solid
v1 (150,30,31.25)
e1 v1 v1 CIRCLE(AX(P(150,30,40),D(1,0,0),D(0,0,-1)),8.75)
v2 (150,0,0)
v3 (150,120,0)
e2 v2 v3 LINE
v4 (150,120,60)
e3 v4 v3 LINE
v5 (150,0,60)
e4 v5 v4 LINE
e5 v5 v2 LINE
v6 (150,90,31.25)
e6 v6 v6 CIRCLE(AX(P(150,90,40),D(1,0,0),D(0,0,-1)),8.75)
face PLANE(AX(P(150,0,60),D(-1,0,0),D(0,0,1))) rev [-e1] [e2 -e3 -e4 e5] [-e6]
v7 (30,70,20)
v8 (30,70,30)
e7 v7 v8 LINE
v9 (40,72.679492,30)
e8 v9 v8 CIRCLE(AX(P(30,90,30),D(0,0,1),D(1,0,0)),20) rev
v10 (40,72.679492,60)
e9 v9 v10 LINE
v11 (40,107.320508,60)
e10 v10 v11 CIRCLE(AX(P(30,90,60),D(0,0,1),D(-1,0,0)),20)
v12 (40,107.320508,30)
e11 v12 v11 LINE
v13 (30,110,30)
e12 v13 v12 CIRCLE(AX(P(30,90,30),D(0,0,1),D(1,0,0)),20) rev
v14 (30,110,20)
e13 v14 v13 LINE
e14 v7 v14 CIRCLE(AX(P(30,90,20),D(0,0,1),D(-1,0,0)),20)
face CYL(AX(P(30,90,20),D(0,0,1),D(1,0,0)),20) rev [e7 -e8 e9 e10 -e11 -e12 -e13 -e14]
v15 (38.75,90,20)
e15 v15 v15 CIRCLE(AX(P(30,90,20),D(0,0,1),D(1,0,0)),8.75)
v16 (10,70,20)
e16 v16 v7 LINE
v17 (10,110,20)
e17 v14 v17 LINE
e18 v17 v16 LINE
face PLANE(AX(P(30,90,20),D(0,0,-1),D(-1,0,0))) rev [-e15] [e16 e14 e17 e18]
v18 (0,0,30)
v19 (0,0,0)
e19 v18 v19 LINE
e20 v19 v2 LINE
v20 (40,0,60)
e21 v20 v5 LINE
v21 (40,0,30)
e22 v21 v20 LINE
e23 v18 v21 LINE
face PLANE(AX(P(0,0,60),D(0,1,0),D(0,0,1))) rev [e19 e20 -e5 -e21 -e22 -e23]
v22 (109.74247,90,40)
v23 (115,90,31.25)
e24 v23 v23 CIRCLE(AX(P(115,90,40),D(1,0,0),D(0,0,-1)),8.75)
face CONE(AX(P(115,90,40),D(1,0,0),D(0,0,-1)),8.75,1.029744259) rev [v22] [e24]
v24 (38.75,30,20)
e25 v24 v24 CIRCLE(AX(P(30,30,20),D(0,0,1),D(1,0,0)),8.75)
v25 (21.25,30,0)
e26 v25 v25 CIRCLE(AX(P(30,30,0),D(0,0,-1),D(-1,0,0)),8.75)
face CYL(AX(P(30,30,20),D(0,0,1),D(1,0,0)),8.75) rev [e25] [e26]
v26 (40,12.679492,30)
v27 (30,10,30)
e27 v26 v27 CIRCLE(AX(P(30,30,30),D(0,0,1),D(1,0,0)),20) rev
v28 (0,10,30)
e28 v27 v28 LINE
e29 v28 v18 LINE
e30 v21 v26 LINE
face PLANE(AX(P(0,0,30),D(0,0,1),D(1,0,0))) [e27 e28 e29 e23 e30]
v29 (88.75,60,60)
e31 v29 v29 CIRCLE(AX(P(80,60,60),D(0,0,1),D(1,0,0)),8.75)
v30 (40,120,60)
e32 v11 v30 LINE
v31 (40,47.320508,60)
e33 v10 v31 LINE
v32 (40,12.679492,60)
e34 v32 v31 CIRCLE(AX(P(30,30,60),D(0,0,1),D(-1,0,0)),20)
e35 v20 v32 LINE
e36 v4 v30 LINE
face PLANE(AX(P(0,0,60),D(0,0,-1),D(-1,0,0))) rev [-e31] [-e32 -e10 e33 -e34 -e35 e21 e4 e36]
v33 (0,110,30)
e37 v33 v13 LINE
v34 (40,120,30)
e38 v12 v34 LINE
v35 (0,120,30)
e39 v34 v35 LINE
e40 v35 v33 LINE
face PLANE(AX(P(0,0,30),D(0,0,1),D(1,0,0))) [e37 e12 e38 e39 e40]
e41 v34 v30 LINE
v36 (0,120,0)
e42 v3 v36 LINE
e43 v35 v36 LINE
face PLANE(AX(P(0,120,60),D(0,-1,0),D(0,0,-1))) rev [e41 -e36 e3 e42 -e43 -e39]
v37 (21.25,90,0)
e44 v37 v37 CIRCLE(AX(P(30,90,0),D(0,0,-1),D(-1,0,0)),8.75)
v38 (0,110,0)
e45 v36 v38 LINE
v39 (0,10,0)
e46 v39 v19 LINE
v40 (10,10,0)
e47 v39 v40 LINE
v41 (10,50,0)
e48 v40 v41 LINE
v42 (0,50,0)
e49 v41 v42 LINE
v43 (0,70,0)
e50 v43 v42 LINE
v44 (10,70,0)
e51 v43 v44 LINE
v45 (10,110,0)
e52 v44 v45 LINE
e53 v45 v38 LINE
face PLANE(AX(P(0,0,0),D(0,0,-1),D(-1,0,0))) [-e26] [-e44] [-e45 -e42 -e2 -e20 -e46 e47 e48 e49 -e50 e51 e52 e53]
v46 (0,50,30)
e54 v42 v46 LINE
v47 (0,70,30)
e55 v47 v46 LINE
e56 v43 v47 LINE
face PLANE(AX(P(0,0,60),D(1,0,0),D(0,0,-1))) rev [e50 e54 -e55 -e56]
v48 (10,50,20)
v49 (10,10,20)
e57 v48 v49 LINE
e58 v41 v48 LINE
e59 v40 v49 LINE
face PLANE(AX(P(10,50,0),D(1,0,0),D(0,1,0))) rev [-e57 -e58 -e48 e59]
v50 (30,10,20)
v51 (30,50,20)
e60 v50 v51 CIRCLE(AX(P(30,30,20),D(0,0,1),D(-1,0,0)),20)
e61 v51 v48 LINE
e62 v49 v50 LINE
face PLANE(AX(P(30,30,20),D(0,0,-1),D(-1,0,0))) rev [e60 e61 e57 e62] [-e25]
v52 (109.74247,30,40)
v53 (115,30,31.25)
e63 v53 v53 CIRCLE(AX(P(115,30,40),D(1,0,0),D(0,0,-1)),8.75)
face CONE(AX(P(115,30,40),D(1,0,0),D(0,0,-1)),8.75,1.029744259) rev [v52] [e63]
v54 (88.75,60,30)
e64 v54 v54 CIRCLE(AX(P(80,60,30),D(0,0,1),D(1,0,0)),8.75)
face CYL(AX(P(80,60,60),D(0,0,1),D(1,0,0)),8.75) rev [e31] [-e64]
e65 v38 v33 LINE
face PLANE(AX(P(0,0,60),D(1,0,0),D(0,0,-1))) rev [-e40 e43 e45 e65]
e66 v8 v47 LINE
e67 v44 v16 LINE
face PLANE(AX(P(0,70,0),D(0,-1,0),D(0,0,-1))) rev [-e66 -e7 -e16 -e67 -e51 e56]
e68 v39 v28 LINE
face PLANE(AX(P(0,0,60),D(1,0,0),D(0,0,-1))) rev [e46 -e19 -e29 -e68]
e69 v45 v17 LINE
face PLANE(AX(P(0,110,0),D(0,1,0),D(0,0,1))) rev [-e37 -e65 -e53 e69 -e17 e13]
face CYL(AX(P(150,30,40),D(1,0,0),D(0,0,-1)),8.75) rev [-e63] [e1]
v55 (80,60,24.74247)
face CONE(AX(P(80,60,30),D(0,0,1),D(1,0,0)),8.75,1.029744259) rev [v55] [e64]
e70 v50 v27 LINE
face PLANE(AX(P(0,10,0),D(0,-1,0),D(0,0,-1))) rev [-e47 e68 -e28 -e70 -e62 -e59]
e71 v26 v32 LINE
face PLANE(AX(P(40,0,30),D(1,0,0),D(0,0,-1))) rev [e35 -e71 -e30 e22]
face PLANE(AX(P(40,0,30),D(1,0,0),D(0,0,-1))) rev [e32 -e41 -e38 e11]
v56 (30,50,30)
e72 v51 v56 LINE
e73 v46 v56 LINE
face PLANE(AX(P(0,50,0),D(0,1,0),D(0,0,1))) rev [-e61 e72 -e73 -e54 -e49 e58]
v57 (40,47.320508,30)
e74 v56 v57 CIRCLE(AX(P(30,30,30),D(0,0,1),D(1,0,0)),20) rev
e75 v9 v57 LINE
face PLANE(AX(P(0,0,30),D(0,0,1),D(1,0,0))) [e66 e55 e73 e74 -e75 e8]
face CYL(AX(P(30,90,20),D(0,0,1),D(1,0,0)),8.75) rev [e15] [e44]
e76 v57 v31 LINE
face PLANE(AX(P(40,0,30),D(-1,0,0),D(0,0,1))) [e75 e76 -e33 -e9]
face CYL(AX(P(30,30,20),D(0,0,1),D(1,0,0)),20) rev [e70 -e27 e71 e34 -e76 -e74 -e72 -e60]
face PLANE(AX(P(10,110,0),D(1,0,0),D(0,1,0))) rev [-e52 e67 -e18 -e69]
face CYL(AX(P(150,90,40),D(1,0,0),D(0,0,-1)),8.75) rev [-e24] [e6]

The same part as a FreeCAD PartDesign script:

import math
import FreeCAD as App
import Part
import Sketcher

doc = App.newDocument("Part")
body = doc.addObject("PartDesign::Body", "Body")

# Sketch on XY plane
sketch1 = body.newObject("Sketcher::SketchObject", "Sketch")
sketch1.AttachmentSupport = (doc.getObject("XY_Plane"), [""])
sketch1.MapMode = "FlatFace"
sketch1.addGeometry(Part.LineSegment(App.Vector(0, 120, 0), App.Vector(0, 0, 0)), False)
sketch1.addGeometry(Part.LineSegment(App.Vector(0, 0, 0), App.Vector(150, 0, 0)), False)
sketch1.addGeometry(Part.LineSegment(App.Vector(150, 0, 0), App.Vector(150, 120, 0)), False)
sketch1.addGeometry(Part.LineSegment(App.Vector(150, 120, 0), App.Vector(0, 120, 0)), False)
sketch1.addConstraint(Sketcher.Constraint("Coincident", 0, 2, 1, 1))
sketch1.addConstraint(Sketcher.Constraint("Coincident", 1, 2, 2, 1))
sketch1.addConstraint(Sketcher.Constraint("Coincident", 2, 2, 3, 1))
sketch1.addConstraint(Sketcher.Constraint("Coincident", 3, 2, 0, 1))
sketch1.addConstraint(Sketcher.Constraint("Vertical", 0))
sketch1.addConstraint(Sketcher.Constraint("Horizontal", 1))
sketch1.addConstraint(Sketcher.Constraint("Vertical", 2))
sketch1.addConstraint(Sketcher.Constraint("Horizontal", 3))
sketch1.addConstraint(Sketcher.Constraint("Coincident", 0, 2, -1, 1))
sketch1.addConstraint(Sketcher.Constraint("DistanceX", 1, 1, 1, 2, 150.0))
sketch1.addConstraint(Sketcher.Constraint("DistanceY", 0, 2, 0, 1, 120.0))
pad1 = body.newObject("PartDesign::Pad", "Pad")
pad1.Profile = sketch1
pad1.Length = 60

# Sketch on XY plane
sketch2 = body.newObject("Sketcher::SketchObject", "Sketch001")
sketch2.AttachmentSupport = (doc.getObject("XY_Plane"), [""])
sketch2.MapMode = "FlatFace"
sketch2.AttachmentOffset = App.Placement(App.Vector(0, 0, 60), App.Rotation())
sketch2.addGeometry(Part.LineSegment(App.Vector(0, 110, 0), App.Vector(0, 70, 0)), False)
sketch2.addGeometry(Part.LineSegment(App.Vector(0, 70, 0), App.Vector(10, 70, 0)), False)
sketch2.addGeometry(Part.LineSegment(App.Vector(10, 70, 0), App.Vector(10, 110, 0)), False)
sketch2.addGeometry(Part.LineSegment(App.Vector(10, 110, 0), App.Vector(0, 110, 0)), False)
sketch2.addGeometry(Part.LineSegment(App.Vector(0, 50, 0), App.Vector(0, 10, 0)), False)
sketch2.addGeometry(Part.LineSegment(App.Vector(0, 10, 0), App.Vector(10, 10, 0)), False)
sketch2.addGeometry(Part.LineSegment(App.Vector(10, 10, 0), App.Vector(10, 50, 0)), False)
sketch2.addGeometry(Part.LineSegment(App.Vector(10, 50, 0), App.Vector(0, 50, 0)), False)
sketch2.addConstraint(Sketcher.Constraint("Coincident", 0, 2, 1, 1))
sketch2.addConstraint(Sketcher.Constraint("Coincident", 1, 2, 2, 1))
sketch2.addConstraint(Sketcher.Constraint("Coincident", 2, 2, 3, 1))
sketch2.addConstraint(Sketcher.Constraint("Coincident", 3, 2, 0, 1))
sketch2.addConstraint(Sketcher.Constraint("Coincident", 4, 2, 5, 1))
sketch2.addConstraint(Sketcher.Constraint("Coincident", 5, 2, 6, 1))
sketch2.addConstraint(Sketcher.Constraint("Coincident", 6, 2, 7, 1))
sketch2.addConstraint(Sketcher.Constraint("Coincident", 7, 2, 4, 1))
sketch2.addConstraint(Sketcher.Constraint("Vertical", 0))
sketch2.addConstraint(Sketcher.Constraint("Horizontal", 1))
sketch2.addConstraint(Sketcher.Constraint("Vertical", 2))
sketch2.addConstraint(Sketcher.Constraint("Horizontal", 3))
sketch2.addConstraint(Sketcher.Constraint("Vertical", 4))
sketch2.addConstraint(Sketcher.Constraint("Horizontal", 5))
sketch2.addConstraint(Sketcher.Constraint("Vertical", 6))
sketch2.addConstraint(Sketcher.Constraint("Horizontal", 7))
sketch2.addConstraint(Sketcher.Constraint("PointOnObject", 0, 2, -2))
sketch2.addConstraint(Sketcher.Constraint("PointOnObject", 4, 2, -2))
sketch2.addConstraint(Sketcher.Constraint("Vertical", 2, 2, 5, 2))
sketch2.addConstraint(Sketcher.Constraint("Equal", 2, 4))
sketch2.addConstraint(Sketcher.Constraint("DistanceX", 1, 1, 1, 2, 10.0))
sketch2.addConstraint(Sketcher.Constraint("DistanceY", 0, 2, 0, 1, 40.0))
sketch2.addConstraint(Sketcher.Constraint("DistanceY", -1, 1, 0, 2, 70.0))
sketch2.addConstraint(Sketcher.Constraint("DistanceY", -1, 1, 4, 2, 10.0))
pocket1 = body.newObject("PartDesign::Pocket", "Pocket")
pocket1.Profile = sketch2
pocket1.Length = 60

# Sketch on XY plane
sketch3 = body.newObject("Sketcher::SketchObject", "Sketch002")
sketch3.AttachmentSupport = (doc.getObject("XY_Plane"), [""])
sketch3.MapMode = "FlatFace"
sketch3.AttachmentOffset = App.Placement(App.Vector(0, 0, 60), App.Rotation())
sketch3.addGeometry(Part.LineSegment(App.Vector(30, 110, 0), App.Vector(10, 110, 0)), False)
sketch3.addGeometry(Part.LineSegment(App.Vector(10, 110, 0), App.Vector(10, 70, 0)), False)
sketch3.addGeometry(Part.LineSegment(App.Vector(10, 70, 0), App.Vector(30, 70, 0)), False)
sketch3.addGeometry(Part.ArcOfCircle(Part.Circle(App.Vector(30, 90, 0), App.Vector(0, 0, 1), 20), math.radians(-90), math.radians(90)), False)
sketch3.addGeometry(Part.LineSegment(App.Vector(10, 50, 0), App.Vector(10, 10, 0)), False)
sketch3.addGeometry(Part.LineSegment(App.Vector(10, 10, 0), App.Vector(30, 10, 0)), False)
sketch3.addGeometry(Part.ArcOfCircle(Part.Circle(App.Vector(30, 30, 0), App.Vector(0, 0, 1), 20), math.radians(-90), math.radians(90)), False)
sketch3.addGeometry(Part.LineSegment(App.Vector(30, 50, 0), App.Vector(10, 50, 0)), False)
sketch3.addConstraint(Sketcher.Constraint("Coincident", 0, 2, 1, 1))
sketch3.addConstraint(Sketcher.Constraint("Coincident", 1, 2, 2, 1))
sketch3.addConstraint(Sketcher.Constraint("Tangent", 2, 2, 3, 1))
sketch3.addConstraint(Sketcher.Constraint("Tangent", 3, 2, 0, 1))
sketch3.addConstraint(Sketcher.Constraint("Coincident", 4, 2, 5, 1))
sketch3.addConstraint(Sketcher.Constraint("Tangent", 5, 2, 6, 1))
sketch3.addConstraint(Sketcher.Constraint("Tangent", 6, 2, 7, 1))
sketch3.addConstraint(Sketcher.Constraint("Coincident", 7, 2, 4, 1))
sketch3.addConstraint(Sketcher.Constraint("Horizontal", 0))
sketch3.addConstraint(Sketcher.Constraint("Vertical", 1))
sketch3.addConstraint(Sketcher.Constraint("Horizontal", 2))
sketch3.addConstraint(Sketcher.Constraint("Vertical", 4))
sketch3.addConstraint(Sketcher.Constraint("Horizontal", 5))
sketch3.addConstraint(Sketcher.Constraint("Horizontal", 7))
sketch3.addConstraint(Sketcher.Constraint("Equal", 3, 6))
sketch3.addConstraint(Sketcher.Constraint("Vertical", 3, 3, 6, 3))
sketch3.addConstraint(Sketcher.Constraint("Vertical", 1, 2, 4, 2))
sketch3.addConstraint(Sketcher.Constraint("Radius", 3, 20.0))
sketch3.addConstraint(Sketcher.Constraint("DistanceX", 0, 2, 0, 1, 20.0))
sketch3.addConstraint(Sketcher.Constraint("DistanceX", -1, 1, 3, 3, 30.0))
sketch3.addConstraint(Sketcher.Constraint("DistanceY", -1, 1, 3, 3, 90.0))
sketch3.addConstraint(Sketcher.Constraint("DistanceY", -1, 1, 6, 3, 30.0))
pocket2 = body.newObject("PartDesign::Pocket", "Pocket001")
pocket2.Profile = sketch3
pocket2.Length = 40

# Sketch on XY plane
sketch4 = body.newObject("Sketcher::SketchObject", "Sketch003")
sketch4.AttachmentSupport = (doc.getObject("XY_Plane"), [""])
sketch4.MapMode = "FlatFace"
sketch4.AttachmentOffset = App.Placement(App.Vector(0, 0, 20), App.Rotation())
sketch4.addGeometry(Part.Circle(App.Vector(30, 90, 0), App.Vector(0, 0, 1), 9), False)
sketch4.addGeometry(Part.Circle(App.Vector(30, 30, 0), App.Vector(0, 0, 1), 9), False)
sketch4.addConstraint(Sketcher.Constraint("Equal", 0, 1))
sketch4.addConstraint(Sketcher.Constraint("Vertical", 0, 3, 1, 3))
sketch4.addConstraint(Sketcher.Constraint("Diameter", 0, 17.5))
sketch4.addConstraint(Sketcher.Constraint("DistanceX", -1, 1, 0, 3, 30.0))
sketch4.addConstraint(Sketcher.Constraint("DistanceY", -1, 1, 0, 3, 90.0))
sketch4.addConstraint(Sketcher.Constraint("DistanceY", -1, 1, 1, 3, 30.0))
doc.recompute()
hole = body.newObject("PartDesign::Hole", "Hole")
hole.Profile = sketch4
hole.ThreadType = "None"
hole.Diameter = 17.5
hole.DepthType = "Dimension"
hole.Depth = 67.5
hole.DrillPoint = "Angled"
hole.DrillPointAngle = 118

# Sketch on XY plane
sketch5 = body.newObject("Sketcher::SketchObject", "Sketch004")
sketch5.AttachmentSupport = (doc.getObject("XY_Plane"), [""])
sketch5.MapMode = "FlatFace"
sketch5.AttachmentOffset = App.Placement(App.Vector(0, 0, 60), App.Rotation())
sketch5.addGeometry(Part.ArcOfCircle(Part.Circle(App.Vector(30, 90, 0), App.Vector(0, 0, 1), 20), math.radians(60), math.radians(90)), False)
sketch5.addGeometry(Part.LineSegment(App.Vector(40, 107, 0), App.Vector(40, 120, 0)), False)
sketch5.addGeometry(Part.LineSegment(App.Vector(40, 120, 0), App.Vector(0, 120, 0)), False)
sketch5.addGeometry(Part.LineSegment(App.Vector(0, 120, 0), App.Vector(0, 110, 0)), False)
sketch5.addGeometry(Part.LineSegment(App.Vector(0, 110, 0), App.Vector(30, 110, 0)), False)
sketch5.addGeometry(Part.LineSegment(App.Vector(40, 47, 0), App.Vector(40, 73, 0)), False)
sketch5.addGeometry(Part.ArcOfCircle(Part.Circle(App.Vector(30, 90, 0), App.Vector(0, 0, 1), 20), math.radians(-90), math.radians(-60)), False)
sketch5.addGeometry(Part.LineSegment(App.Vector(30, 70, 0), App.Vector(0, 70, 0)), False)
sketch5.addGeometry(Part.LineSegment(App.Vector(0, 70, 0), App.Vector(0, 50, 0)), False)
sketch5.addGeometry(Part.LineSegment(App.Vector(0, 50, 0), App.Vector(30, 50, 0)), False)
sketch5.addGeometry(Part.ArcOfCircle(Part.Circle(App.Vector(30, 30, 0), App.Vector(0, 0, 1), 20), math.radians(60), math.radians(90)), False)
sketch5.addGeometry(Part.LineSegment(App.Vector(40, 0, 0), App.Vector(40, 13, 0)), False)
sketch5.addGeometry(Part.ArcOfCircle(Part.Circle(App.Vector(30, 30, 0), App.Vector(0, 0, 1), 20), math.radians(-90), math.radians(-60)), False)
sketch5.addGeometry(Part.LineSegment(App.Vector(30, 10, 0), App.Vector(0, 10, 0)), False)
sketch5.addGeometry(Part.LineSegment(App.Vector(0, 10, 0), App.Vector(0, 0, 0)), False)
sketch5.addGeometry(Part.LineSegment(App.Vector(0, 0, 0), App.Vector(40, 0, 0)), False)
sketch5.addConstraint(Sketcher.Constraint("Coincident", 0, 1, 1, 1))
sketch5.addConstraint(Sketcher.Constraint("Coincident", 1, 2, 2, 1))
sketch5.addConstraint(Sketcher.Constraint("Coincident", 2, 2, 3, 1))
sketch5.addConstraint(Sketcher.Constraint("Coincident", 3, 2, 4, 1))
sketch5.addConstraint(Sketcher.Constraint("Tangent", 4, 2, 0, 2))
sketch5.addConstraint(Sketcher.Constraint("Coincident", 5, 2, 6, 2))
sketch5.addConstraint(Sketcher.Constraint("Tangent", 6, 1, 7, 1))
sketch5.addConstraint(Sketcher.Constraint("Coincident", 7, 2, 8, 1))
sketch5.addConstraint(Sketcher.Constraint("Coincident", 8, 2, 9, 1))
sketch5.addConstraint(Sketcher.Constraint("Tangent", 9, 2, 10, 2))
sketch5.addConstraint(Sketcher.Constraint("Coincident", 10, 1, 5, 1))
sketch5.addConstraint(Sketcher.Constraint("Coincident", 11, 2, 12, 2))
sketch5.addConstraint(Sketcher.Constraint("Tangent", 12, 1, 13, 1))
sketch5.addConstraint(Sketcher.Constraint("Coincident", 13, 2, 14, 1))
sketch5.addConstraint(Sketcher.Constraint("Coincident", 14, 2, 15, 1))
sketch5.addConstraint(Sketcher.Constraint("Coincident", 15, 2, 11, 1))
sketch5.addConstraint(Sketcher.Constraint("Vertical", 1))
sketch5.addConstraint(Sketcher.Constraint("Horizontal", 2))
sketch5.addConstraint(Sketcher.Constraint("Vertical", 3))
sketch5.addConstraint(Sketcher.Constraint("Horizontal", 4))
sketch5.addConstraint(Sketcher.Constraint("Vertical", 5))
sketch5.addConstraint(Sketcher.Constraint("Horizontal", 7))
sketch5.addConstraint(Sketcher.Constraint("Vertical", 8))
sketch5.addConstraint(Sketcher.Constraint("Horizontal", 9))
sketch5.addConstraint(Sketcher.Constraint("Vertical", 11))
sketch5.addConstraint(Sketcher.Constraint("Horizontal", 13))
sketch5.addConstraint(Sketcher.Constraint("Vertical", 14))
sketch5.addConstraint(Sketcher.Constraint("Horizontal", 15))
sketch5.addConstraint(Sketcher.Constraint("Coincident", 14, 2, -1, 1))
sketch5.addConstraint(Sketcher.Constraint("Coincident", 6, 3, 0, 3))
sketch5.addConstraint(Sketcher.Constraint("Coincident", 12, 3, 10, 3))
sketch5.addConstraint(Sketcher.Constraint("Equal", 0, 6))
sketch5.addConstraint(Sketcher.Constraint("Equal", 6, 10))
sketch5.addConstraint(Sketcher.Constraint("Equal", 10, 12))
sketch5.addConstraint(Sketcher.Constraint("PointOnObject", 2, 2, -2))
sketch5.addConstraint(Sketcher.Constraint("PointOnObject", 7, 2, -2))
sketch5.addConstraint(Sketcher.Constraint("Vertical", 6, 3, 10, 3))
sketch5.addConstraint(Sketcher.Constraint("Vertical", 1, 2, 5, 2))
sketch5.addConstraint(Sketcher.Constraint("Vertical", 10, 1, 11, 2))
sketch5.addConstraint(Sketcher.Constraint("Equal", 1, 11))
sketch5.addConstraint(Sketcher.Constraint("Radius", 0, 20.0))
sketch5.addConstraint(Sketcher.Constraint("DistanceX", 2, 2, 2, 1, 40.0))
sketch5.addConstraint(Sketcher.Constraint("DistanceX", 4, 1, 4, 2, 30.0))
sketch5.addConstraint(Sketcher.Constraint("DistanceY", 3, 2, 3, 1, 10.0))
sketch5.addConstraint(Sketcher.Constraint("DistanceY", 8, 2, 8, 1, 20.0))
pocket3 = body.newObject("PartDesign::Pocket", "Pocket002")
pocket3.Profile = sketch5
pocket3.Length = 30

# Sketch on XY plane
sketch6 = body.newObject("Sketcher::SketchObject", "Sketch005")
sketch6.AttachmentSupport = (doc.getObject("XY_Plane"), [""])
sketch6.MapMode = "FlatFace"
sketch6.AttachmentOffset = App.Placement(App.Vector(0, 0, 60), App.Rotation())
sketch6.addGeometry(Part.Circle(App.Vector(80, 60, 0), App.Vector(0, 0, 1), 9), False)
sketch6.addConstraint(Sketcher.Constraint("Diameter", 0, 17.5))
sketch6.addConstraint(Sketcher.Constraint("DistanceX", -1, 1, 0, 3, 80.0))
sketch6.addConstraint(Sketcher.Constraint("DistanceY", -1, 1, 0, 3, 60.0))
doc.recompute()
hole2 = body.newObject("PartDesign::Hole", "Hole001")
hole2.Profile = sketch6
hole2.ThreadType = "None"
hole2.Diameter = 17.5
hole2.DepthType = "Dimension"
hole2.Depth = 30
hole2.DrillPoint = "Angled"
hole2.DrillPointAngle = 118

# Sketch on YZ plane
sketch7 = body.newObject("Sketcher::SketchObject", "Sketch006")
sketch7.AttachmentSupport = (doc.getObject("YZ_Plane"), [""])
sketch7.MapMode = "FlatFace"
sketch7.AttachmentOffset = App.Placement(App.Vector(0, 0, 150), App.Rotation())
sketch7.addGeometry(Part.Circle(App.Vector(90, 40, 0), App.Vector(0, 0, 1), 9), False)
sketch7.addGeometry(Part.Circle(App.Vector(30, 40, 0), App.Vector(0, 0, 1), 9), False)
sketch7.addConstraint(Sketcher.Constraint("Equal", 0, 1))
sketch7.addConstraint(Sketcher.Constraint("Horizontal", 0, 3, 1, 3))
sketch7.addConstraint(Sketcher.Constraint("Diameter", 0, 17.5))
sketch7.addConstraint(Sketcher.Constraint("DistanceX", -1, 1, 0, 3, 90.0))
sketch7.addConstraint(Sketcher.Constraint("DistanceY", -1, 1, 0, 3, 40.0))
sketch7.addConstraint(Sketcher.Constraint("DistanceX", -1, 1, 1, 3, 30.0))
doc.recompute()
hole3 = body.newObject("PartDesign::Hole", "Hole002")
hole3.Profile = sketch7
hole3.ThreadType = "None"
hole3.Diameter = 17.5
hole3.DepthType = "Dimension"
hole3.Depth = 35
hole3.DrillPoint = "Angled"
hole3.DrillPointAngle = 118

doc.recompute()
